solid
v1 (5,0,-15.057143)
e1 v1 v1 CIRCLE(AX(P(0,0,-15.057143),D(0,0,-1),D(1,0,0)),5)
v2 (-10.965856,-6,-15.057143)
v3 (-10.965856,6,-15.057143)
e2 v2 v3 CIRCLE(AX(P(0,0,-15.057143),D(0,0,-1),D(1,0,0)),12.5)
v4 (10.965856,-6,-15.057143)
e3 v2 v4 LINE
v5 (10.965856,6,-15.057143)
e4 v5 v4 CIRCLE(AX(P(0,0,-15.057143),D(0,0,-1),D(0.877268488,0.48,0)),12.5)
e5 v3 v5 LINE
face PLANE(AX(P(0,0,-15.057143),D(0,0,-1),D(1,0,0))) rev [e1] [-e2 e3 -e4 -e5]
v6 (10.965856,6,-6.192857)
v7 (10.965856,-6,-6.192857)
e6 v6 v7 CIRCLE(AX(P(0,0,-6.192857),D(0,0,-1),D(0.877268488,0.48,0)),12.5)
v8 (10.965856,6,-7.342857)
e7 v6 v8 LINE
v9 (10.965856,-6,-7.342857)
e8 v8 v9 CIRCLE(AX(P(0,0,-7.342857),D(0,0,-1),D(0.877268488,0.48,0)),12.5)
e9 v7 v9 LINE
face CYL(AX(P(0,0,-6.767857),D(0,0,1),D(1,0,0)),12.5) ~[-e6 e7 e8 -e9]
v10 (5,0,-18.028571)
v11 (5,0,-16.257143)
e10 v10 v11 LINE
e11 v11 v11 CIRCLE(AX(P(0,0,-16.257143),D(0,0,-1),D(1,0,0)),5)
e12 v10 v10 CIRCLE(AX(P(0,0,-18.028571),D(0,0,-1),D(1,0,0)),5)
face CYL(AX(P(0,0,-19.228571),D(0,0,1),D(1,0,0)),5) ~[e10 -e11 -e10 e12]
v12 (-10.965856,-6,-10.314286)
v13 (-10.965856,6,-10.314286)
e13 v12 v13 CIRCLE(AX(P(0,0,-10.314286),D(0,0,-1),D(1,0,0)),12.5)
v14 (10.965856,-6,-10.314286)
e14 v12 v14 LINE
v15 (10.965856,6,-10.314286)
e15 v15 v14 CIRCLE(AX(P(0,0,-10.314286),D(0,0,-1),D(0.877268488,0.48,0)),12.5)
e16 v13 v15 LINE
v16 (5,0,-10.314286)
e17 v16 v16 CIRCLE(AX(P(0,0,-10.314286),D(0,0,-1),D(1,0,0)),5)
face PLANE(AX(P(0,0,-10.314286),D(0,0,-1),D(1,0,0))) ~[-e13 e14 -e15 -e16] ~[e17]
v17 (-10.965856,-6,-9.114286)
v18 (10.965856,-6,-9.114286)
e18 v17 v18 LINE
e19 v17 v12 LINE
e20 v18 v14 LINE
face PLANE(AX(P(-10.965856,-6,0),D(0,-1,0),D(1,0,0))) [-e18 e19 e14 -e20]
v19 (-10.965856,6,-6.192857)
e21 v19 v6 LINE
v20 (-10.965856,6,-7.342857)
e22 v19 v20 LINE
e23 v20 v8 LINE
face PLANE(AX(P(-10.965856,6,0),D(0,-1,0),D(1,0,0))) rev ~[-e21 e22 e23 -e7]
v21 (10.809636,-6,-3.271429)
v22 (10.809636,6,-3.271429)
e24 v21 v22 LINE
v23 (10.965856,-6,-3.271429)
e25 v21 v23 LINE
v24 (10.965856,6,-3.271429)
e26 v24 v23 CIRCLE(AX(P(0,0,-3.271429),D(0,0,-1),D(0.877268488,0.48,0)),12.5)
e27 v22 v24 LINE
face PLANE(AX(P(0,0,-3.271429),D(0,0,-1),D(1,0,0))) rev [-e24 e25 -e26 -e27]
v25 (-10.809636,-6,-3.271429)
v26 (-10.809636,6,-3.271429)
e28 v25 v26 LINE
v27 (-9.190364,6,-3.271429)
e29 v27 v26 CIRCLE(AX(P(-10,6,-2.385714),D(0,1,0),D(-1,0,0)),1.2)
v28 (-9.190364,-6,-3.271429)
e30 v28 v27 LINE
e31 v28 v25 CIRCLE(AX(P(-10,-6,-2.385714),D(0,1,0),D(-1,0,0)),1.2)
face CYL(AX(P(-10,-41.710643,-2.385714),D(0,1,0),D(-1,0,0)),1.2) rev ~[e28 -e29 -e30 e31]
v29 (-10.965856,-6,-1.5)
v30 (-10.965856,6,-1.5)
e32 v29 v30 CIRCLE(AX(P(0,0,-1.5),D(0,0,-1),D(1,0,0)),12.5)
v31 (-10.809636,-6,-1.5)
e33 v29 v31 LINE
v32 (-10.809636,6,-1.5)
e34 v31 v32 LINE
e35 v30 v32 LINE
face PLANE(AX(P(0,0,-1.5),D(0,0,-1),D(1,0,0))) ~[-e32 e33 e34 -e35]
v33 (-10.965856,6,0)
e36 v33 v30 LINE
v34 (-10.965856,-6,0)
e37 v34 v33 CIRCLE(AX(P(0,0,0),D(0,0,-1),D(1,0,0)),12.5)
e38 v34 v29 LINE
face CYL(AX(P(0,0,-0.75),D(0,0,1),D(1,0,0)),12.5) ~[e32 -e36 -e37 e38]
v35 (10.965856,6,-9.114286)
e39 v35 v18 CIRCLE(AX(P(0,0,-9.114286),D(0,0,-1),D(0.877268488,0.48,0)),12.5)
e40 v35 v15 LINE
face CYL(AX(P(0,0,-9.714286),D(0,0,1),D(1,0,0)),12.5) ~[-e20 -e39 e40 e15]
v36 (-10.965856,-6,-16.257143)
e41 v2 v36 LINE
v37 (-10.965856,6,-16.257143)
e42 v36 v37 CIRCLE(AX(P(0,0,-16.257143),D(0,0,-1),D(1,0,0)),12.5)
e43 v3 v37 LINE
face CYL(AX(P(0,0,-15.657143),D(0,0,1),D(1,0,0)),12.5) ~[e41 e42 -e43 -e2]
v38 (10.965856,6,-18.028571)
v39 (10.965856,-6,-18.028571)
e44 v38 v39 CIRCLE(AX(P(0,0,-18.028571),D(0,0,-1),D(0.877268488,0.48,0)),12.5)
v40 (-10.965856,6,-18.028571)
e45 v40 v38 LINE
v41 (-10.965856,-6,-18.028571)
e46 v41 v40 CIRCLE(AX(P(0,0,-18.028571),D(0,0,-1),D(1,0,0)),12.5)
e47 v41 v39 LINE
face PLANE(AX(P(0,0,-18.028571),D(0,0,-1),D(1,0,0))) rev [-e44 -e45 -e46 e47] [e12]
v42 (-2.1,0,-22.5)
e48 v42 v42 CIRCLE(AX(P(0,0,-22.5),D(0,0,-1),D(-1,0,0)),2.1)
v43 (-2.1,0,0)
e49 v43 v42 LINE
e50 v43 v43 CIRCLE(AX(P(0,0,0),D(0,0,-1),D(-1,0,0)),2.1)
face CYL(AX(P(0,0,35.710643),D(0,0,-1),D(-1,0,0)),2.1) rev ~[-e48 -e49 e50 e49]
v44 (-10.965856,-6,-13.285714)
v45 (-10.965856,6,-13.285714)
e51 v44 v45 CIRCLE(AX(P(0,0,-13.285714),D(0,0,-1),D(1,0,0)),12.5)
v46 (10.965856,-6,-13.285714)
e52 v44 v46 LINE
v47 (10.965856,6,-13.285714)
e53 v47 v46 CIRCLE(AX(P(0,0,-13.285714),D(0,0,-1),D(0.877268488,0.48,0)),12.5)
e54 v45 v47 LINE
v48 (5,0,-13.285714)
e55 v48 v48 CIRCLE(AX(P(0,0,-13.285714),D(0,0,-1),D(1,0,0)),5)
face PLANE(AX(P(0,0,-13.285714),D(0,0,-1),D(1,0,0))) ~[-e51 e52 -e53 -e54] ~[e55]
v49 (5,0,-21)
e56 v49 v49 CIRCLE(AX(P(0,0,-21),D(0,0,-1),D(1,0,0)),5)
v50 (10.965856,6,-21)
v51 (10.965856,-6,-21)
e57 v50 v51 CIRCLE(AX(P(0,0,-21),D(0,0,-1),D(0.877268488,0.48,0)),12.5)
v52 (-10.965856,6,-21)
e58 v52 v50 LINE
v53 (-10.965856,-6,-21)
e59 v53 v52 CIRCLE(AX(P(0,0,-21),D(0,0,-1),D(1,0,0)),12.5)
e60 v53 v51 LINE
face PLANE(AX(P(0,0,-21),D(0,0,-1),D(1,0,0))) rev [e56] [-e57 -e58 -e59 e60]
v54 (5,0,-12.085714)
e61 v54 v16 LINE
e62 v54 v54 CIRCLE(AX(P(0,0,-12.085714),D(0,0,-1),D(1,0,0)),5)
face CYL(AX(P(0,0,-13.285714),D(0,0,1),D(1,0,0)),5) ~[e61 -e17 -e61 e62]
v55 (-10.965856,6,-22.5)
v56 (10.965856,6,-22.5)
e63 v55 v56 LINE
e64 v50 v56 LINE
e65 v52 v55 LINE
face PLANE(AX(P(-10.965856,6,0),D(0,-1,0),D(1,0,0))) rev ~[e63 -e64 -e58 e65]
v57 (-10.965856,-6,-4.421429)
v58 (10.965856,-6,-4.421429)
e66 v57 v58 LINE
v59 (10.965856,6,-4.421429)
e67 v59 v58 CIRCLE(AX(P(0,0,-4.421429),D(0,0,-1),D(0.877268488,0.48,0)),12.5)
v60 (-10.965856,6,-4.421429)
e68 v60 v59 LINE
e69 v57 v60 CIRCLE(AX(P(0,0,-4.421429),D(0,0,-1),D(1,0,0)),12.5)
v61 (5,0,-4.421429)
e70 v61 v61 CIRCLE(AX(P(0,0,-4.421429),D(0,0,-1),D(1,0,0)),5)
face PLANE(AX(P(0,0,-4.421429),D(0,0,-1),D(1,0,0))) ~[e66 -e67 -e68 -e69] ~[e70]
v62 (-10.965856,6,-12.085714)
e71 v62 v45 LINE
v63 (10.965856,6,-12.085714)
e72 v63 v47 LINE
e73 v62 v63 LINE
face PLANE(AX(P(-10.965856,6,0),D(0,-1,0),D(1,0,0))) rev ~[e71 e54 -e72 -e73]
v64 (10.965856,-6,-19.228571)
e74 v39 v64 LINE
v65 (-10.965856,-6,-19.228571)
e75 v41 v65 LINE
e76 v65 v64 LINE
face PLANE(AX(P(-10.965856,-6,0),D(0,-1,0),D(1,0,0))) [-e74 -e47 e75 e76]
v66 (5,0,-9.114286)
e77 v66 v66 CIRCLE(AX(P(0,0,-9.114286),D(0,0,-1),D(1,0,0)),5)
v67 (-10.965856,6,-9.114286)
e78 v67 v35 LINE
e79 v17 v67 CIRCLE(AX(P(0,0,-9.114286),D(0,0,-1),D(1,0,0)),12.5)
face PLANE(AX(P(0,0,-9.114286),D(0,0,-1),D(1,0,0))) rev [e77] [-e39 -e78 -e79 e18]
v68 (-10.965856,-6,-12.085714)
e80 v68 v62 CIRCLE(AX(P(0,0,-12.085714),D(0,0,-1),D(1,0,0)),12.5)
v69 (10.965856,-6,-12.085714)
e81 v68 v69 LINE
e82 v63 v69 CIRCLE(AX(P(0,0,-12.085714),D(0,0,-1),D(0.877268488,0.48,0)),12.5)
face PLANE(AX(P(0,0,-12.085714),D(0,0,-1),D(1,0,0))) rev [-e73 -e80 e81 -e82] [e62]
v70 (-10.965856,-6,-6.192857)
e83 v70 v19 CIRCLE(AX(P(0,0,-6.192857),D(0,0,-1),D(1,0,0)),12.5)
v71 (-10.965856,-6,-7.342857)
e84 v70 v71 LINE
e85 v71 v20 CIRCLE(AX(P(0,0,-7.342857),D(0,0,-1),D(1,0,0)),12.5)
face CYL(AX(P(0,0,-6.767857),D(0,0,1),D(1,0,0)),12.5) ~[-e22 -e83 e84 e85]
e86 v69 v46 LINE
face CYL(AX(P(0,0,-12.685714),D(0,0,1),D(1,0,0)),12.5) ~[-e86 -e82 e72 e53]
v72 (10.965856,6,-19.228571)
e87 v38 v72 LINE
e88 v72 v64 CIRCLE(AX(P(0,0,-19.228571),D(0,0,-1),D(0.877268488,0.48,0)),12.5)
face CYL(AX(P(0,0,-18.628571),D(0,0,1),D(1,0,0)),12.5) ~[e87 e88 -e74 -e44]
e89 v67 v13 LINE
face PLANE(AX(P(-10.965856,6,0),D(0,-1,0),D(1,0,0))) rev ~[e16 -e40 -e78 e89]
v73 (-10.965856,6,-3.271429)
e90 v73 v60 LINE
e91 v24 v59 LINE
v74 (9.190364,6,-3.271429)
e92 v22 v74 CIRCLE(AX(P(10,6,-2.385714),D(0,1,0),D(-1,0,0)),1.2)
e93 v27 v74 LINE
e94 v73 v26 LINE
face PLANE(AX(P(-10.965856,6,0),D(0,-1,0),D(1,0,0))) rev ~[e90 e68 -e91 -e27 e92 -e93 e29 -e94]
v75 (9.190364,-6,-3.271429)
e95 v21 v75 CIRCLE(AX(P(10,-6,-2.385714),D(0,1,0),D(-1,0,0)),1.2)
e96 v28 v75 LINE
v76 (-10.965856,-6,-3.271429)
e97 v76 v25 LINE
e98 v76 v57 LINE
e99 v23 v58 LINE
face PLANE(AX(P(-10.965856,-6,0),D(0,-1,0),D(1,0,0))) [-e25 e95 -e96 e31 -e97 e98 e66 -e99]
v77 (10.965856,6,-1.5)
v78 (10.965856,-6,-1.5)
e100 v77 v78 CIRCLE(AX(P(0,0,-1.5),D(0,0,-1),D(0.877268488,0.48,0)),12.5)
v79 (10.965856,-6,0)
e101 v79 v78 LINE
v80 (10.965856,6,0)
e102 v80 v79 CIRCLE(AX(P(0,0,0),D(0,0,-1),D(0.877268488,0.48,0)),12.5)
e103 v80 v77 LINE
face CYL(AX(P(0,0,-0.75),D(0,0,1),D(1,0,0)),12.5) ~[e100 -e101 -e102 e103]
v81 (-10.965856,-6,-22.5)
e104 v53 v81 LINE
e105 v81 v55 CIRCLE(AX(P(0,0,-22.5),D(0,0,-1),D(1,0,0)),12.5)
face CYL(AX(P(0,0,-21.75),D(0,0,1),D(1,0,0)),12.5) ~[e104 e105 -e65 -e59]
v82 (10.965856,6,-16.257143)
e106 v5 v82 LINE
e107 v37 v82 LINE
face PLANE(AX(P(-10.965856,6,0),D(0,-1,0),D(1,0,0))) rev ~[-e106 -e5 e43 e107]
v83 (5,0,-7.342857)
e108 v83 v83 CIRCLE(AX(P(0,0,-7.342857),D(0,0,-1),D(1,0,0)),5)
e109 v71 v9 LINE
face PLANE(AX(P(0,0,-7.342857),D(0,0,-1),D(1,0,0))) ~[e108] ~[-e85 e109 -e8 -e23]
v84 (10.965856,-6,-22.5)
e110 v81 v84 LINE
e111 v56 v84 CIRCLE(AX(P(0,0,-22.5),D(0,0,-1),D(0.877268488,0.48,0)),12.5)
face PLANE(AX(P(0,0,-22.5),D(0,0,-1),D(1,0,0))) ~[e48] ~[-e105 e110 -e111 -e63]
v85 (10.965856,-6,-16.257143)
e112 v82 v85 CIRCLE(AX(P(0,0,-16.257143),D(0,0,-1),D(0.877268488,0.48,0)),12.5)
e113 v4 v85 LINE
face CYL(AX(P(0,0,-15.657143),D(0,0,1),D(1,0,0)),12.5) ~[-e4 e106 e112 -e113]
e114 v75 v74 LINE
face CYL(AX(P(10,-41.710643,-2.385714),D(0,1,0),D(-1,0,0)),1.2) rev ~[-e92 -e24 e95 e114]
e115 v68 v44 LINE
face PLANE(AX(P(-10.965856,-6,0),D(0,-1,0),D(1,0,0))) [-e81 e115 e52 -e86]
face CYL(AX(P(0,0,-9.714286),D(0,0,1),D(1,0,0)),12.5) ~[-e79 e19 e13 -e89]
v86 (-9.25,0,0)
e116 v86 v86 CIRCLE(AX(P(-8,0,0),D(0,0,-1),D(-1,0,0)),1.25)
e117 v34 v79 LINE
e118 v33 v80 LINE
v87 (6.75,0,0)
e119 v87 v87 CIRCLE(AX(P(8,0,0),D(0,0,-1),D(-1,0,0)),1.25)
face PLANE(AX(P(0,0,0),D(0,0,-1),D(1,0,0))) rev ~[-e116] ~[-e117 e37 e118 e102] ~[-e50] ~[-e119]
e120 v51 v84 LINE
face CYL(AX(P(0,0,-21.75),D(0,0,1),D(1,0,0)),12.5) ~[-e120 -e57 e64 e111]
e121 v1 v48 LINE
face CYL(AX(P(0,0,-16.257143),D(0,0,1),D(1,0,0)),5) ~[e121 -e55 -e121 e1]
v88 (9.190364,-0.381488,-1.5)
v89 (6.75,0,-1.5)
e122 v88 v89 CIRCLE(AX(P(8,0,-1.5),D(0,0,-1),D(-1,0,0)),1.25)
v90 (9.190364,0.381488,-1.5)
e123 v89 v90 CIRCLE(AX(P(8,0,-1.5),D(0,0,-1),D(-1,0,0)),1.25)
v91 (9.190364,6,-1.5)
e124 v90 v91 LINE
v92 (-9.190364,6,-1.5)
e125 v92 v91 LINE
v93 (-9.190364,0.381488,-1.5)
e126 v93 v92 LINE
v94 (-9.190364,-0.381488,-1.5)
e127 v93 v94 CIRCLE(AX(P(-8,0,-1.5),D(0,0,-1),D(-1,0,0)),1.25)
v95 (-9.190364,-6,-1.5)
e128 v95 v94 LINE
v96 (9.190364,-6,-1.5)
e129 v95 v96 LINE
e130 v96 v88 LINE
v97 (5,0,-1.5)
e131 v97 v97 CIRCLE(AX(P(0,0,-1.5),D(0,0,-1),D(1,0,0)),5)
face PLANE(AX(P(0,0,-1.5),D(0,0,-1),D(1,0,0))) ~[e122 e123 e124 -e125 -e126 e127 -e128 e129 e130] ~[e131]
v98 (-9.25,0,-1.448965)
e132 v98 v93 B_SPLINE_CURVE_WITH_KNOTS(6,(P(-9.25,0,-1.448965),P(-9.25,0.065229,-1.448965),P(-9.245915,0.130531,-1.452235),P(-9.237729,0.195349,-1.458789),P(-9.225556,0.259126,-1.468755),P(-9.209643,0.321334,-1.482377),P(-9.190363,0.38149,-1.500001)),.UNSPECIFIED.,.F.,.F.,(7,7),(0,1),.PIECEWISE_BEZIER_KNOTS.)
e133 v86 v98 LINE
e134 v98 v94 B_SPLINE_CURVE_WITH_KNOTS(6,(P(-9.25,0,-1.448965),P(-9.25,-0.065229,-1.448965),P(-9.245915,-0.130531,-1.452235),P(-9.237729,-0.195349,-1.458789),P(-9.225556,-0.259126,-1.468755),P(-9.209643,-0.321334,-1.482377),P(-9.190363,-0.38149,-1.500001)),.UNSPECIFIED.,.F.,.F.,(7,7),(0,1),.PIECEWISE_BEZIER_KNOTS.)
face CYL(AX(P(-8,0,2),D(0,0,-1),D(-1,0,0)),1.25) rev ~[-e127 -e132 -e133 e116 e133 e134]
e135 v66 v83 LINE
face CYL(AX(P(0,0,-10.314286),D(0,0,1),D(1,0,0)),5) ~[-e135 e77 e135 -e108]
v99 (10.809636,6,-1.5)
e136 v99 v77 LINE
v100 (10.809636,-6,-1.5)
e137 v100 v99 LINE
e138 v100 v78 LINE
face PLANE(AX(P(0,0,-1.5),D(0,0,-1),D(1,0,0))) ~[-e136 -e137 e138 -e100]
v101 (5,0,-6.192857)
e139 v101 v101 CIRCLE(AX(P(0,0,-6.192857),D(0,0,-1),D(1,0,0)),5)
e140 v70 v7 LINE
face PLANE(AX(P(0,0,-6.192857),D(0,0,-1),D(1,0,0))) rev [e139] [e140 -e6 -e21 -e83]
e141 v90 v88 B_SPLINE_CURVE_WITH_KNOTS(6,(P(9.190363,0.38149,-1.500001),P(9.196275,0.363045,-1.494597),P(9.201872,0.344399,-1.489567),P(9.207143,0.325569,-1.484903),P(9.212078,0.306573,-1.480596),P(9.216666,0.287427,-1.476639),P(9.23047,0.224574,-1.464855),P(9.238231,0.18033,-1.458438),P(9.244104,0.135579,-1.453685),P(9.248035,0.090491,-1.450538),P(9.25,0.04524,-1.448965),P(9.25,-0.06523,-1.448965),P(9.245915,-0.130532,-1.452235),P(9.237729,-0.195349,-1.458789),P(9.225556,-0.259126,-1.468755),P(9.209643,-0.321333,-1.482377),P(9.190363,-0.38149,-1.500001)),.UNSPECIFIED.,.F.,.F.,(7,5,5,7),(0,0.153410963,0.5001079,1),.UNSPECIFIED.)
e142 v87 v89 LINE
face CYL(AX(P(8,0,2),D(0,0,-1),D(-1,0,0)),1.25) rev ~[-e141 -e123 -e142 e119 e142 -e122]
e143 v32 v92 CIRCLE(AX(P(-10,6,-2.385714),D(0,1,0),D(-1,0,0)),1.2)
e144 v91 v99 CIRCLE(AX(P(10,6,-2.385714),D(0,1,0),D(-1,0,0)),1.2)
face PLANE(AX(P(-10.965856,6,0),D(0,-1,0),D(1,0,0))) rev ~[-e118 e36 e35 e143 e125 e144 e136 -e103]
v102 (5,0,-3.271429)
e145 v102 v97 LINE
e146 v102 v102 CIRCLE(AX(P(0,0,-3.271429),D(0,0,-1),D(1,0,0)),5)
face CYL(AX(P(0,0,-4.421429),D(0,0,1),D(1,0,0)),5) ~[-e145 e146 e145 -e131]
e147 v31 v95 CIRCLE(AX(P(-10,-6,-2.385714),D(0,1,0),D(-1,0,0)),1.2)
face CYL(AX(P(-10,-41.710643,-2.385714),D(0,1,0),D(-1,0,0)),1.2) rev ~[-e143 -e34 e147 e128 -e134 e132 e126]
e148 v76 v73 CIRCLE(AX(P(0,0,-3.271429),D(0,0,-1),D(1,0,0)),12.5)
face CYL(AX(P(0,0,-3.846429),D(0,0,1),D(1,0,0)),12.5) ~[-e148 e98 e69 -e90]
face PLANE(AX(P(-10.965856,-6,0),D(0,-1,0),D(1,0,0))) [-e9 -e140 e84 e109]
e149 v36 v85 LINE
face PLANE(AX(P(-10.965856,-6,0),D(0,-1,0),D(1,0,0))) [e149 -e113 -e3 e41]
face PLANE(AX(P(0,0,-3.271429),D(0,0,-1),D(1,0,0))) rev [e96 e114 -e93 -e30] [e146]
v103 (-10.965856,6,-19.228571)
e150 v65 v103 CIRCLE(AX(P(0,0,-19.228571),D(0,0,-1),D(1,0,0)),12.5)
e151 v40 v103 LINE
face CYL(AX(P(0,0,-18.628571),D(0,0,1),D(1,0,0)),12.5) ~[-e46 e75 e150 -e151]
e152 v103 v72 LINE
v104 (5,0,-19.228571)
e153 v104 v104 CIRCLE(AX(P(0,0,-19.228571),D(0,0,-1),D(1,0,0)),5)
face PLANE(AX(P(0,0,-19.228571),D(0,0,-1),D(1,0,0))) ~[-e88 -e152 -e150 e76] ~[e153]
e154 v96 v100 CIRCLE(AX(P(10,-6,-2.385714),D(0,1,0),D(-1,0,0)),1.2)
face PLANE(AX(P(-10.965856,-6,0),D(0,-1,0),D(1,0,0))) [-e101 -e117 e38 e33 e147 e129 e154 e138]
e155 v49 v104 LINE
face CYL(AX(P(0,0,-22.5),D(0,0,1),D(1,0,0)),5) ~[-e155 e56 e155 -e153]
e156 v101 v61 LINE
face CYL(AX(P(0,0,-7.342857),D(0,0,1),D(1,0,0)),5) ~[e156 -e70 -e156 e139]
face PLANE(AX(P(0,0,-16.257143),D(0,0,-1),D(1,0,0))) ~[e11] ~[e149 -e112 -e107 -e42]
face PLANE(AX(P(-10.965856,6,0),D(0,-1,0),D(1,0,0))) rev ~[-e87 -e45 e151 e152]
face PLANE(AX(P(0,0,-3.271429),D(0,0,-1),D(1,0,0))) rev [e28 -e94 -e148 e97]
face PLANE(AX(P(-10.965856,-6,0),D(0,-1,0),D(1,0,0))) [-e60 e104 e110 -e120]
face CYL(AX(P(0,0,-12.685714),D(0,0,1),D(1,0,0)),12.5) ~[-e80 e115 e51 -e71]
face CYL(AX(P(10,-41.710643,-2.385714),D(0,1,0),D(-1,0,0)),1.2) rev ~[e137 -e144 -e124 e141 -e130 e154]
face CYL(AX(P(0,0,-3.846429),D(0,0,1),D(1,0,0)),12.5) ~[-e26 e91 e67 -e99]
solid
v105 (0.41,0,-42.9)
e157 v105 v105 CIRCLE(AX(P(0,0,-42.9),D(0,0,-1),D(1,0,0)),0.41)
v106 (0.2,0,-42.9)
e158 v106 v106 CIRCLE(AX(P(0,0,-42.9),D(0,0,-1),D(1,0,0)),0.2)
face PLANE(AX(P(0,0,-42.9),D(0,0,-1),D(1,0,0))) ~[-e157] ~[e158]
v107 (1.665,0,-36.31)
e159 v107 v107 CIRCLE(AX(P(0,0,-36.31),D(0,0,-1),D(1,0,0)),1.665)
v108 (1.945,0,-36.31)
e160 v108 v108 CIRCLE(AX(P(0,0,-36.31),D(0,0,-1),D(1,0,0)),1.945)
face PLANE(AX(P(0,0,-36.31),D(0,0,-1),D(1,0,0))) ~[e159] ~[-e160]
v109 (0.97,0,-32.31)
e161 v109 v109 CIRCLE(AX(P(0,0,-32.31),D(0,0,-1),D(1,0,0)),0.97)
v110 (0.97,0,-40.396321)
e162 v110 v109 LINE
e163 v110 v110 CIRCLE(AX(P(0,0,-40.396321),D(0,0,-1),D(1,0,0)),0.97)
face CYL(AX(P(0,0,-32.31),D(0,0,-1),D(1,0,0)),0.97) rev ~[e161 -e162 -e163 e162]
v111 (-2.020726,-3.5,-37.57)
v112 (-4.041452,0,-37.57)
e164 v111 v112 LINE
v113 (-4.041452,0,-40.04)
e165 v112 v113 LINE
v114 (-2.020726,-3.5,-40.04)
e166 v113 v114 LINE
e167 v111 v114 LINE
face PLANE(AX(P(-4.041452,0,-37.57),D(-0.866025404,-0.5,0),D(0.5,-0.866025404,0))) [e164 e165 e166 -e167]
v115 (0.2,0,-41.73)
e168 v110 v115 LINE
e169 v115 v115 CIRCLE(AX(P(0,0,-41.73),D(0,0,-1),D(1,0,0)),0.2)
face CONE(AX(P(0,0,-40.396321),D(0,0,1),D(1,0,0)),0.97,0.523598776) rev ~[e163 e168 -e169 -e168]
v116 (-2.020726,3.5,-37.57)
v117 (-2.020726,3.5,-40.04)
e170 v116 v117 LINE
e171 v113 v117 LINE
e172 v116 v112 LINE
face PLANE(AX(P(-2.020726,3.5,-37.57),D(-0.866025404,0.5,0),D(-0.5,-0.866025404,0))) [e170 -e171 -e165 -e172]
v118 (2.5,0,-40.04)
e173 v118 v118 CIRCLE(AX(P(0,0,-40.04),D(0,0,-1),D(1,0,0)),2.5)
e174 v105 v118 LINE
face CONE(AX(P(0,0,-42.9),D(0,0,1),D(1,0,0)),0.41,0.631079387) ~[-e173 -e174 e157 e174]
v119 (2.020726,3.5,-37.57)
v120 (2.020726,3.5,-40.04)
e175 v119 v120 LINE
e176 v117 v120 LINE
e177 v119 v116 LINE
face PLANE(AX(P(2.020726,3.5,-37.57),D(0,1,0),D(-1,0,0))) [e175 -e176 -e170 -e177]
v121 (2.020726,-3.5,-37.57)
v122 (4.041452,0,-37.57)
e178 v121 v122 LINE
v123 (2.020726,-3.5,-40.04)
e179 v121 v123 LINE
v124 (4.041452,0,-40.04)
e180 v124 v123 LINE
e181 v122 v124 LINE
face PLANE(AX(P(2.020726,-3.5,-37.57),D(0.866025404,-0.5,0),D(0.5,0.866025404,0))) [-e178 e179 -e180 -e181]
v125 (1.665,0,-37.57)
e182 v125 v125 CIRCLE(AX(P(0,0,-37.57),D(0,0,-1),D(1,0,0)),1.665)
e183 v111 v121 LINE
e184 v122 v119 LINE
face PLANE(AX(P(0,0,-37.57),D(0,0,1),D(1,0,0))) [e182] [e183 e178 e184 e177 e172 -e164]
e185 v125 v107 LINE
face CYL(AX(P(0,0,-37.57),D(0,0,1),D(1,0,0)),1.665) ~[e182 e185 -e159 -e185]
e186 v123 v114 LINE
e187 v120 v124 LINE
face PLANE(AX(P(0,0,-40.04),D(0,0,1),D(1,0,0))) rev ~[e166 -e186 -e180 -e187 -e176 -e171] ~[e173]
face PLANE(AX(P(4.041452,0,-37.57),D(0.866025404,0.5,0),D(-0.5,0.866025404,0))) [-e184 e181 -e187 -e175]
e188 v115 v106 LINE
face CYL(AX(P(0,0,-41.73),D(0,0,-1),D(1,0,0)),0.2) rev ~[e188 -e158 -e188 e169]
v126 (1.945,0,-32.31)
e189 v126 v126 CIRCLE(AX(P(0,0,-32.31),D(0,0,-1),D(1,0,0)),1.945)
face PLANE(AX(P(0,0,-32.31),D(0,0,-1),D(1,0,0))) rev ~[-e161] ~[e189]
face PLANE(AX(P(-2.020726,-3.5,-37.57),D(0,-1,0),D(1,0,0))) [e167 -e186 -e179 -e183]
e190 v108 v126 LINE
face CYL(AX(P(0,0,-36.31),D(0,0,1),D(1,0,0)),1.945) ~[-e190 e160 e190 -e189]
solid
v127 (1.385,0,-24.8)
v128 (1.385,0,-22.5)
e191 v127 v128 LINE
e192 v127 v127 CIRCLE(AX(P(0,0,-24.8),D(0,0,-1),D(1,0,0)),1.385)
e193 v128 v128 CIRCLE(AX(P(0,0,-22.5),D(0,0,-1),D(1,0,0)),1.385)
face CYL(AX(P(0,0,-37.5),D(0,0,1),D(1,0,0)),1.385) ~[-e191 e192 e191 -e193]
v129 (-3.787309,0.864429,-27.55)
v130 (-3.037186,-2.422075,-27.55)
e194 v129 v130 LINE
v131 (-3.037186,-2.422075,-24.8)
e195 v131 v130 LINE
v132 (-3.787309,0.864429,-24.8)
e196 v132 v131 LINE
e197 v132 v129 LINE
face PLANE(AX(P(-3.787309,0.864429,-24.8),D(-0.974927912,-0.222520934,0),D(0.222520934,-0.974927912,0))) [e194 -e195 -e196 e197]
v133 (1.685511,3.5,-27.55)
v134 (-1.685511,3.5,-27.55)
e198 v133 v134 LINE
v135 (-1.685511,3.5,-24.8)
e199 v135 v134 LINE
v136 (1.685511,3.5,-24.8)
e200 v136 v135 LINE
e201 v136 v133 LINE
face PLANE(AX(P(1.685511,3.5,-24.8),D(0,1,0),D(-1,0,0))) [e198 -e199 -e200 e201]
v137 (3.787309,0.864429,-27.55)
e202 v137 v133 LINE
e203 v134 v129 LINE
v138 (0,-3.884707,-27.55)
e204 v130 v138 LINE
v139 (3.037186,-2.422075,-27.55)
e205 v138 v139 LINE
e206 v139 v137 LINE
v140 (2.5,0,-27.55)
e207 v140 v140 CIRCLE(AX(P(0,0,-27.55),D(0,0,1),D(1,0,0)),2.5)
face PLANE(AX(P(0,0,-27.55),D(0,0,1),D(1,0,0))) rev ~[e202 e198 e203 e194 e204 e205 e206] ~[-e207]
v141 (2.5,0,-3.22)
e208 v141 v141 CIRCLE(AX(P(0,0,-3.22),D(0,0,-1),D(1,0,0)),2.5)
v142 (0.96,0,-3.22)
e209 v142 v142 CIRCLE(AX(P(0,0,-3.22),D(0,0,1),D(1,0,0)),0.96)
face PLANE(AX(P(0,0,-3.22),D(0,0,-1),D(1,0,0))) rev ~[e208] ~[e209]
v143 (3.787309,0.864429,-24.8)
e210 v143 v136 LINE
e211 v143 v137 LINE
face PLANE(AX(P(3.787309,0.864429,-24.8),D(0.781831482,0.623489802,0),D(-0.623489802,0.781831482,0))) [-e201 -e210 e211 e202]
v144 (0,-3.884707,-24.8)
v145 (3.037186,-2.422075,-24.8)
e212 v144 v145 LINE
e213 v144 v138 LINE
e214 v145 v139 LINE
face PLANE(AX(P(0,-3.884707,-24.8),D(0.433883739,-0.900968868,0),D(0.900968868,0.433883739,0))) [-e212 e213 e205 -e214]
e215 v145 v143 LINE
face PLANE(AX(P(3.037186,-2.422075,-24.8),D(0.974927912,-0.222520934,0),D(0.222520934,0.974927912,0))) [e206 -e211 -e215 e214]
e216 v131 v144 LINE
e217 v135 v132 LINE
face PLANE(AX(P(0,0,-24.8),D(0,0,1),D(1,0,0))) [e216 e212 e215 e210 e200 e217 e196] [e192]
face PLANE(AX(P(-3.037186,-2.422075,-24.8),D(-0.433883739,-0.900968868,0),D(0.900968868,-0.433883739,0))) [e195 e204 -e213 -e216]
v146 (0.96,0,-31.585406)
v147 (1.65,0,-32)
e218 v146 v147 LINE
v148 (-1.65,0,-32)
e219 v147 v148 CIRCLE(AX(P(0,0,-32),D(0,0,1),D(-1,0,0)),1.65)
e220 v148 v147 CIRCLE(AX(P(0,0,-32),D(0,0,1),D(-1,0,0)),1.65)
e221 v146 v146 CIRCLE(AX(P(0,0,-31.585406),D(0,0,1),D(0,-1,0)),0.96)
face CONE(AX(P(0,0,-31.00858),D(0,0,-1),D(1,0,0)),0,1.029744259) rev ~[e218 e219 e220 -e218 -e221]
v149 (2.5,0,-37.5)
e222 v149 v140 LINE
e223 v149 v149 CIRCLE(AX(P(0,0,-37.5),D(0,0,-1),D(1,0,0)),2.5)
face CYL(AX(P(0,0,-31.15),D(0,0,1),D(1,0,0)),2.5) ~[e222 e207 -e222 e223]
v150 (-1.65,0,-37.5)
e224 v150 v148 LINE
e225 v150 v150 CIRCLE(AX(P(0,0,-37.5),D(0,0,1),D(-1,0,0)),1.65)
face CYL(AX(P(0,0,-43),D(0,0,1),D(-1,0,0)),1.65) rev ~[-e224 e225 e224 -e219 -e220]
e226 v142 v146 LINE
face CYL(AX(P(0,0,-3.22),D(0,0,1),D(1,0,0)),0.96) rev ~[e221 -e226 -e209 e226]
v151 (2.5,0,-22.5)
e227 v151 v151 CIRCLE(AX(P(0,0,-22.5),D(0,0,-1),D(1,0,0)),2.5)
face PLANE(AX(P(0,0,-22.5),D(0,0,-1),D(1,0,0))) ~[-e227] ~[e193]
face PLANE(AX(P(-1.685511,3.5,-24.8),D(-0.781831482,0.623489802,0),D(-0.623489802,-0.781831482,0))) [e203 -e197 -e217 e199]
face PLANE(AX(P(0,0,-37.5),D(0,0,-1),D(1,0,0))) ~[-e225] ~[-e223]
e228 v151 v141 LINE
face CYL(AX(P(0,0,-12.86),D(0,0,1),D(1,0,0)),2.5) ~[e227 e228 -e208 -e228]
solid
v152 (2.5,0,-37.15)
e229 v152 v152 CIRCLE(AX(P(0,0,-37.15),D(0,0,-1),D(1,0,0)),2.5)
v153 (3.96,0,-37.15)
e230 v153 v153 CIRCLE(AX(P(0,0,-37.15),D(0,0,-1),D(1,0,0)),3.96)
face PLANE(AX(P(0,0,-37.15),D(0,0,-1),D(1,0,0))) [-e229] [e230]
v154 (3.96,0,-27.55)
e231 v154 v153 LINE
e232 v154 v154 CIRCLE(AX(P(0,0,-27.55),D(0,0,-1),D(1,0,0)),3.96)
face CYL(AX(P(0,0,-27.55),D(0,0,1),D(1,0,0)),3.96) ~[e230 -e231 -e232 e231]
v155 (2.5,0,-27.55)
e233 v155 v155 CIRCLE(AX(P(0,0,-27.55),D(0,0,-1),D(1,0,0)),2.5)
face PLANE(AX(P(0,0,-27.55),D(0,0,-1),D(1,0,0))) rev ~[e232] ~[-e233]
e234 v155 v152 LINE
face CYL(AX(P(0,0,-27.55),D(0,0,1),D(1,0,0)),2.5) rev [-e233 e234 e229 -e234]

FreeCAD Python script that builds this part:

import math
import FreeCAD as App
import Part
import Sketcher

V = App.Vector
Q = App.Units.Quantity


def add_polygon(sketch, points):
    """Adds a closed chain of lines whose ends are joined by coincident constraints."""
    first, n = sketch.GeometryCount, len(points)
    for a, b in zip(points, points[1:] + points[:1]):
        sketch.addGeometry(Part.LineSegment(App.Vector(*a, 0), App.Vector(*b, 0)), False)
    for i in range(n):
        sketch.addConstraint(Sketcher.Constraint("Coincident", first + i, 2, first + (i + 1) % n, 1))

doc = App.newDocument("Part")
body = doc.addObject("PartDesign::Body", "Body")

# Sketch on XZ plane
sketch1 = doc.addObject("Sketcher::SketchObject", "Sketch")
body.addObject(sketch1)
sketch1.AttachmentSupport = (doc.XZ_Plane, [""])
sketch1.MapMode = "FlatFace"
add_polygon(sketch1, [(0, 0), (0, -22.5), (12.5, -22.5), (12.5, -21), (5, -21), (5, -19.2), (12.5, -19.2), (12.5, -18), (5, -18), (5, -16.3), (12.5, -16.3), (12.5, -15.1), (5, -15.1), (5, -13.3), (12.5, -13.3), (12.5, -12.1), (5, -12.1), (5, -10.3), (12.5, -10.3), (12.5, -9.1), (5, -9.1), (5, -7.3), (12.5, -7.3), (12.5, -6.2), (5, -6.2), (5, -4.4), (12.5, -4.4), (12.5, -3.3), (5, -3.3), (5, -1.5), (12.5, -1.5), (12.5, 0)])  # lines 0-31
sketch1.addConstraint(Sketcher.Constraint("Vertical", 0))
sketch1.addConstraint(Sketcher.Constraint("Horizontal", 1))
sketch1.addConstraint(Sketcher.Constraint("Vertical", 2))
sketch1.addConstraint(Sketcher.Constraint("Horizontal", 3))
sketch1.addConstraint(Sketcher.Constraint("Vertical", 4))
sketch1.addConstraint(Sketcher.Constraint("Horizontal", 5))
sketch1.addConstraint(Sketcher.Constraint("Vertical", 6))
sketch1.addConstraint(Sketcher.Constraint("Horizontal", 7))
sketch1.addConstraint(Sketcher.Constraint("Vertical", 8))
sketch1.addConstraint(Sketcher.Constraint("Horizontal", 9))
sketch1.addConstraint(Sketcher.Constraint("Vertical", 10))
sketch1.addConstraint(Sketcher.Constraint("Horizontal", 11))
sketch1.addConstraint(Sketcher.Constraint("Vertical", 12))
sketch1.addConstraint(Sketcher.Constraint("Horizontal", 13))
sketch1.addConstraint(Sketcher.Constraint("Vertical", 14))
sketch1.addConstraint(Sketcher.Constraint("Horizontal", 15))
sketch1.addConstraint(Sketcher.Constraint("Vertical", 16))
sketch1.addConstraint(Sketcher.Constraint("Horizontal", 17))
sketch1.addConstraint(Sketcher.Constraint("Vertical", 18))
sketch1.addConstraint(Sketcher.Constraint("Horizontal", 19))
sketch1.addConstraint(Sketcher.Constraint("Vertical", 20))
sketch1.addConstraint(Sketcher.Constraint("Horizontal", 21))
sketch1.addConstraint(Sketcher.Constraint("Vertical", 22))
sketch1.addConstraint(Sketcher.Constraint("Horizontal", 23))
sketch1.addConstraint(Sketcher.Constraint("Vertical", 24))
sketch1.addConstraint(Sketcher.Constraint("Horizontal", 25))
sketch1.addConstraint(Sketcher.Constraint("Vertical", 26))
sketch1.addConstraint(Sketcher.Constraint("Horizontal", 27))
sketch1.addConstraint(Sketcher.Constraint("Vertical", 28))
sketch1.addConstraint(Sketcher.Constraint("Horizontal", 29))
sketch1.addConstraint(Sketcher.Constraint("Vertical", 30))
sketch1.addConstraint(Sketcher.Constraint("Horizontal", 31))
sketch1.addConstraint(Sketcher.Constraint("Coincident", 31, 2, -1, 1))
sketch1.addConstraint(Sketcher.Constraint("Vertical", 2, 2, 5, 2))
sketch1.addConstraint(Sketcher.Constraint("Vertical", 4, 2, 7, 2))
sketch1.addConstraint(Sketcher.Constraint("Vertical", 6, 2, 9, 2))
sketch1.addConstraint(Sketcher.Constraint("Vertical", 8, 2, 11, 2))
sketch1.addConstraint(Sketcher.Constraint("Vertical", 10, 2, 13, 2))
sketch1.addConstraint(Sketcher.Constraint("Vertical", 12, 2, 15, 2))
sketch1.addConstraint(Sketcher.Constraint("Vertical", 14, 2, 17, 2))
sketch1.addConstraint(Sketcher.Constraint("Vertical", 16, 2, 19, 2))
sketch1.addConstraint(Sketcher.Constraint("Vertical", 18, 2, 21, 2))
sketch1.addConstraint(Sketcher.Constraint("Vertical", 20, 2, 23, 2))
sketch1.addConstraint(Sketcher.Constraint("Vertical", 22, 2, 25, 2))
sketch1.addConstraint(Sketcher.Constraint("Vertical", 24, 2, 27, 2))
sketch1.addConstraint(Sketcher.Constraint("Vertical", 26, 2, 29, 2))
sketch1.addConstraint(Sketcher.Constraint("Equal", 4, 8))
sketch1.addConstraint(Sketcher.Constraint("Equal", 6, 10))
sketch1.addConstraint(Sketcher.Constraint("Equal", 8, 12))
sketch1.addConstraint(Sketcher.Constraint("Equal", 10, 14))
sketch1.addConstraint(Sketcher.Constraint("Equal", 12, 16))
sketch1.addConstraint(Sketcher.Constraint("Equal", 14, 18))
sketch1.addConstraint(Sketcher.Constraint("Equal", 16, 20))
sketch1.addConstraint(Sketcher.Constraint("Equal", 20, 24))
sketch1.addConstraint(Sketcher.Constraint("Equal", 22, 26))
sketch1.addConstraint(Sketcher.Constraint("Equal", 24, 28))
sketch1.addConstraint(Sketcher.Constraint("Equal", 2, 30))
sketch1.addConstraint(Sketcher.Constraint("DistanceX", 1, 1, 1, 2, Q("12.5 mm")))
sketch1.addConstraint(Sketcher.Constraint("DistanceX", 3, 2, 3, 1, Q("7.5 mm")))
sketch1.addConstraint(Sketcher.Constraint("DistanceY", 0, 2, 0, 1, Q("22.5 mm")))
sketch1.addConstraint(Sketcher.Constraint("DistanceY", 2, 1, 2, 2, Q("1.5 mm")))
sketch1.addConstraint(Sketcher.Constraint("DistanceY", 6, 1, 6, 2, Q("1.2 mm")))
sketch1.addConstraint(Sketcher.Constraint("DistanceY", 22, 1, 22, 2, Q("1.15 mm")))
revolution = doc.addObject("PartDesign::Revolution", "Revolution")
body.addObject(revolution)
revolution.Profile = sketch1
revolution.ReferenceAxis = (sketch1, ["V_Axis"])
revolution.Angle = 360

# Sketch on XY plane
sketch2 = doc.addObject("Sketcher::SketchObject", "Sketch001")
body.addObject(sketch2)
sketch2.AttachmentSupport = (doc.XY_Plane, [""])
sketch2.MapMode = "FlatFace"
add_polygon(sketch2, [(-11, -6), (-11, -12), (11, -12), (11, -6)])  # lines 0-3
add_polygon(sketch2, [(-11, 12), (-11, 6), (11, 6), (11, 12)])  # lines 4-7
sketch2.addConstraint(Sketcher.Constraint("Vertical", 0))
sketch2.addConstraint(Sketcher.Constraint("Horizontal", 1))
sketch2.addConstraint(Sketcher.Constraint("Vertical", 2))
sketch2.addConstraint(Sketcher.Constraint("Horizontal", 3))
sketch2.addConstraint(Sketcher.Constraint("Vertical", 4))
sketch2.addConstraint(Sketcher.Constraint("Horizontal", 5))
sketch2.addConstraint(Sketcher.Constraint("Vertical", 6))
sketch2.addConstraint(Sketcher.Constraint("Horizontal", 7))
sketch2.addConstraint(Sketcher.Constraint("Symmetric", 2, 2, 4, 2, -1, 1))
sketch2.addConstraint(Sketcher.Constraint("Symmetric", 0, 2, 6, 2, -1, 1))
sketch2.addConstraint(Sketcher.Constraint("Vertical", 3, 2, 4, 2))
sketch2.addConstraint(Sketcher.Constraint("DistanceY", 0, 2, 0, 1, Q("6.5 mm")))
sketch2.addConstraint(Sketcher.Constraint("DistanceY", 2, 2, -1, 1, Q("6 mm")))
sketch2.addConstraint(Sketcher.Constraint("DistanceX", 1, 1, 1, 2, Q("21.931712 mm")))
pocket1 = doc.addObject("PartDesign::Pocket", "Pocket")
body.addObject(pocket1)
pocket1.Profile = sketch2
pocket1.Type = "ThroughAll"

# Sketch on XY plane
sketch3 = doc.addObject("Sketcher::SketchObject", "Sketch002")
body.addObject(sketch3)
sketch3.AttachmentSupport = (doc.XY_Plane, [""])
sketch3.MapMode = "FlatFace"
sketch3.addGeometry(Part.Circle(V(0, 0, 0), V(0, 0, 1), 2.1), False)
sketch3.addConstraint(Sketcher.Constraint("Coincident", 0, 3, -1, 1))
sketch3.addConstraint(Sketcher.Constraint("Diameter", 0, Q("4.2 mm")))
doc.recompute()
hole = doc.addObject("PartDesign::Hole", "Hole")
body.addObject(hole)
hole.Profile = sketch3
hole.ThreadType = "None"
hole.Diameter = 4.2
hole.DepthType = "ThroughAll"

# Sketch on XY plane
sketch4 = doc.addObject("Sketcher::SketchObject", "Sketch003")
body.addObject(sketch4)
sketch4.AttachmentSupport = (doc.XY_Plane, [""])
sketch4.MapMode = "FlatFace"
sketch4.addGeometry(Part.Circle(V(-8, 0, 0), V(0, 0, 1), 1.2), False)
sketch4.addGeometry(Part.Circle(V(8, 0, 0), V(0, 0, 1), 1.2), False)
sketch4.addConstraint(Sketcher.Constraint("Equal", 0, 1))
sketch4.addConstraint(Sketcher.Constraint("Symmetric", 0, 3, 1, 3, -1, 1))
sketch4.addConstraint(Sketcher.Constraint("PointOnObject", 0, 3, -1))
sketch4.addConstraint(Sketcher.Constraint("Diameter", 0, Q("2.5 mm")))
sketch4.addConstraint(Sketcher.Constraint("DistanceX", 0, 3, -1, 1, Q("8 mm")))
doc.recompute()
hole2 = doc.addObject("PartDesign::Hole", "Hole001")
body.addObject(hole2)
hole2.Profile = sketch4
hole2.ThreadType = "None"
hole2.Diameter = 2.5
hole2.DepthType = "Dimension"
hole2.Depth = 2
hole2.DrillPoint = "Angled"
hole2.DrillPointAngle = 118

# Sketch on XZ plane
sketch5 = doc.addObject("Sketcher::SketchObject", "Sketch004")
body.addObject(sketch5)
sketch5.AttachmentSupport = (doc.XZ_Plane, [""])
sketch5.MapMode = "FlatFace"
sketch5.AttachmentOffset = App.Placement(V(0, 0, 6), App.Rotation())
sketch5.addGeometry(Part.Circle(V(-10, -2.4, 0), V(0, 0, 1), 1.2), False)
sketch5.addGeometry(Part.Circle(V(10, -2.4, 0), V(0, 0, 1), 1.2), False)
sketch5.addConstraint(Sketcher.Constraint("Equal", 0, 1))
sketch5.addConstraint(Sketcher.Constraint("Symmetric", 0, 3, 1, 3, -2))
sketch5.addConstraint(Sketcher.Constraint("Diameter", 0, Q("2.4 mm")))
sketch5.addConstraint(Sketcher.Constraint("DistanceX", 0, 3, -1, 1, Q("10 mm")))
sketch5.addConstraint(Sketcher.Constraint("DistanceY", 0, 3, -1, 1, Q("2.385714 mm")))
doc.recompute()
hole3 = doc.addObject("PartDesign::Hole", "Hole002")
body.addObject(hole3)
hole3.Profile = sketch5
hole3.ThreadType = "None"
hole3.Diameter = 2.4
hole3.DepthType = "ThroughAll"
body2 = doc.addObject("PartDesign::Body", "Body001")

# Sketch on XZ plane
sketch6 = doc.addObject("Sketcher::SketchObject", "Sketch005")
body2.addObject(sketch6)
sketch6.AttachmentSupport = (doc.getObject("XZ_Plane001"), [""])
sketch6.MapMode = "FlatFace"
add_polygon(sketch6, [(0, -3.2), (0, -37.5), (2.5, -37.5), (2.5, -24.8), (1.4, -24.8), (1.4, -22.5), (2.5, -22.5), (2.5, -3.2)])  # lines 0-7
sketch6.addConstraint(Sketcher.Constraint("Vertical", 0))
sketch6.addConstraint(Sketcher.Constraint("Horizontal", 1))
sketch6.addConstraint(Sketcher.Constraint("Vertical", 2))
sketch6.addConstraint(Sketcher.Constraint("Horizontal", 3))
sketch6.addConstraint(Sketcher.Constraint("Vertical", 4))
sketch6.addConstraint(Sketcher.Constraint("Horizontal", 5))
sketch6.addConstraint(Sketcher.Constraint("Vertical", 6))
sketch6.addConstraint(Sketcher.Constraint("Horizontal", 7))
sketch6.addConstraint(Sketcher.Constraint("PointOnObject", 0, 2, -2))
sketch6.addConstraint(Sketcher.Constraint("Vertical", 2, 2, 5, 2))
sketch6.addConstraint(Sketcher.Constraint("DistanceX", 1, 1, 1, 2, Q("2.5 mm")))
sketch6.addConstraint(Sketcher.Constraint("DistanceY", 2, 1, 2, 2, Q("12.7 mm")))
sketch6.addConstraint(Sketcher.Constraint("DistanceY", 4, 1, 4, 2, Q("2.3 mm")))
sketch6.addConstraint(Sketcher.Constraint("DistanceY", 0, 2, 0, 1, Q("34.28 mm")))
sketch6.addConstraint(Sketcher.Constraint("DistanceY", 0, 2, -1, 1, Q("37.5 mm")))
sketch6.addConstraint(Sketcher.Constraint("DistanceX", 3, 2, 3, 1, Q("1.115 mm")))
revolution2 = doc.addObject("PartDesign::Revolution", "Revolution001")
body2.addObject(revolution2)
revolution2.Profile = sketch6
revolution2.ReferenceAxis = (sketch6, ["V_Axis"])
revolution2.Angle = 360

# Sketch on XY plane
sketch7 = doc.addObject("Sketcher::SketchObject", "Sketch006")
body2.addObject(sketch7)
sketch7.AttachmentSupport = (doc.getObject("XY_Plane001"), [""])
sketch7.MapMode = "FlatFace"
sketch7.AttachmentOffset = App.Placement(V(0, 0, -24.8), App.Rotation())
add_polygon(sketch7, [(3.8, 0.9), (1.7, 3.5), (-1.7, 3.5), (-3.8, 0.9), (-3, -2.4), (0, -3.9), (3, -2.4)])  # lines 0-6
sketch7.addConstraint(Sketcher.Constraint("Horizontal", 1))
sketch7.addConstraint(Sketcher.Constraint("Symmetric", 3, 2, 5, 2, -2))
sketch7.addConstraint(Sketcher.Constraint("Symmetric", 2, 2, 6, 2, -2))
sketch7.addConstraint(Sketcher.Constraint("PointOnObject", 4, 2, -2))
sketch7.addConstraint(Sketcher.Constraint("Equal", 0, 2))
sketch7.addConstraint(Sketcher.Constraint("Equal", 2, 3))
sketch7.addConstraint(Sketcher.Constraint("Equal", 3, 4))
sketch7.addConstraint(Sketcher.Constraint("DistanceY", -1, 1, 0, 2, Q("3.5 mm")))
sketch7.addConstraint(Sketcher.Constraint("DistanceX", 2, 2, 1, 2, Q("2.101798 mm")))
sketch7.addConstraint(Sketcher.Constraint("DistanceX", 1, 2, 1, 1, Q("3.371022 mm")))
sketch7.addConstraint(Sketcher.Constraint("DistanceY", -1, 1, 2, 2, Q("0.864429 mm")))
sketch7.addConstraint(Sketcher.Constraint("DistanceY", 4, 2, 3, 2, Q("1.462632 mm")))
pad1 = doc.addObject("PartDesign::Pad", "Pad")
body2.addObject(pad1)
pad1.Profile = sketch7
pad1.Length = 2.75
pad1.Reversed = True

# Sketch on XY plane
sketch8 = doc.addObject("Sketcher::SketchObject", "Sketch007")
body2.addObject(sketch8)
sketch8.AttachmentSupport = (doc.getObject("XY_Plane001"), [""])
sketch8.MapMode = "FlatFace"
sketch8.AttachmentOffset = App.Placement(V(0, 0, -37.5), App.Rotation())
sketch8.addGeometry(Part.Circle(V(0, 0, 0), V(0, 0, 1), 1.6), False)
sketch8.addConstraint(Sketcher.Constraint("Coincident", 0, 3, -1, 1))
sketch8.addConstraint(Sketcher.Constraint("Diameter", 0, Q("3.3 mm")))
doc.recompute()
hole4 = doc.addObject("PartDesign::Hole", "Hole003")
body2.addObject(hole4)
hole4.Profile = sketch8
hole4.ThreadType = "None"
hole4.Diameter = 3.3
hole4.DepthType = "Dimension"
hole4.Depth = 5.5
hole4.DrillPoint = "Angled"
hole4.DrillPointAngle = 118
hole4.Reversed = True

# Sketch on XY plane
sketch9 = doc.addObject("Sketcher::SketchObject", "Sketch008")
body2.addObject(sketch9)
sketch9.AttachmentSupport = (doc.getObject("XY_Plane001"), [""])
sketch9.MapMode = "FlatFace"
sketch9.AttachmentOffset = App.Placement(V(0, 0, -3.22), App.Rotation())
sketch9.addGeometry(Part.Circle(V(0, 0, 0), V(0, 0, 1), 1), False)
sketch9.addConstraint(Sketcher.Constraint("Coincident", 0, 3, -1, 1))
sketch9.addConstraint(Sketcher.Constraint("Diameter", 0, Q("1.92 mm")))
pocket2 = doc.addObject("PartDesign::Pocket", "Pocket001")
body2.addObject(pocket2)
pocket2.Profile = sketch9
pocket2.Type = "ThroughAll"
body3 = doc.addObject("PartDesign::Body", "Body002")

# Sketch on XY plane
sketch10 = doc.addObject("Sketcher::SketchObject", "Sketch009")
body3.addObject(sketch10)
sketch10.AttachmentSupport = (doc.getObject("XY_Plane002"), [""])
sketch10.MapMode = "FlatFace"
sketch10.AttachmentOffset = App.Placement(V(0, 0, -27.55), App.Rotation())
sketch10.addGeometry(Part.Circle(V(0, 0, 0), V(0, 0, 1), 4), False)
sketch10.addGeometry(Part.Circle(V(0, 0, 0), V(0, 0, 1), 2.5), False)
sketch10.addConstraint(Sketcher.Constraint("Coincident", 0, 3, -1, 1))
sketch10.addConstraint(Sketcher.Constraint("Coincident", 1, 3, -1, 1))
sketch10.addConstraint(Sketcher.Constraint("Diameter", 1, Q("5 mm")))
sketch10.addConstraint(Sketcher.Constraint("Diameter", 0, Q("7.92 mm")))
pad2 = doc.addObject("PartDesign::Pad", "Pad001")
body3.addObject(pad2)
pad2.Profile = sketch10
pad2.Length = 9.6
pad2.Reversed = True
body4 = doc.addObject("PartDesign::Body", "Body003")

# Sketch on XZ plane
sketch11 = doc.addObject("Sketcher::SketchObject", "Sketch010")
body4.addObject(sketch11)
sketch11.AttachmentSupport = (doc.getObject("XZ_Plane003"), [""])
sketch11.MapMode = "FlatFace"
add_polygon(sketch11, [(1.95, -32.31), (0.97, -32.31), (0.97, -40.4), (0.2, -41.73), (0.2, -42.9), (0.41, -42.9), (2.5, -40.04), (3.5, -40.04), (3.5, -37.57), (1.67, -37.57), (1.67, -36.31), (1.95, -36.31)])  # lines 0-11
sketch11.addConstraint(Sketcher.Constraint("Horizontal", 0))
sketch11.addConstraint(Sketcher.Constraint("Vertical", 1))
sketch11.addConstraint(Sketcher.Constraint("Vertical", 3))
sketch11.addConstraint(Sketcher.Constraint("Horizontal", 4))
sketch11.addConstraint(Sketcher.Constraint("Horizontal", 6))
sketch11.addConstraint(Sketcher.Constraint("Vertical", 7))
sketch11.addConstraint(Sketcher.Constraint("Horizontal", 8))
sketch11.addConstraint(Sketcher.Constraint("Vertical", 9))
sketch11.addConstraint(Sketcher.Constraint("Horizontal", 10))
sketch11.addConstraint(Sketcher.Constraint("Vertical", 11))
sketch11.addConstraint(Sketcher.Constraint("DistanceX", 6, 1, 6, 2, Q("1 mm")))
sketch11.addConstraint(Sketcher.Constraint("DistanceY", 11, 1, 11, 2, Q("4 mm")))
sketch11.addConstraint(Sketcher.Constraint("Angle", 2, Q("-120 deg")))
sketch11.addConstraint(Sketcher.Constraint("DistanceX", 4, 1, 4, 2, Q("0.21 mm")))
sketch11.addConstraint(Sketcher.Constraint("DistanceX", 10, 1, 10, 2, Q("0.28 mm")))
sketch11.addConstraint(Sketcher.Constraint("DistanceY", 3, 2, 3, 1, Q("1.17 mm")))
sketch11.addConstraint(Sketcher.Constraint("DistanceY", 7, 1, 7, 2, Q("2.47 mm")))
sketch11.addConstraint(Sketcher.Constraint("DistanceY", 9, 1, 9, 2, Q("1.26 mm")))
sketch11.addConstraint(Sketcher.Constraint("DistanceX", -1, 1, 2, 2, Q("0.2 mm")))
sketch11.addConstraint(Sketcher.Constraint("DistanceY", 3, 2, -1, 1, Q("42.9 mm")))
sketch11.addConstraint(Sketcher.Constraint("DistanceX", -1, 1, 5, 2, Q("2.5 mm")))
sketch11.addConstraint(Sketcher.Constraint("Distance", 2, Q("1.54 mm")))
sketch11.addConstraint(Sketcher.Constraint("DistanceX", 0, 2, 0, 1, Q("0.975 mm")))
sketch11.addConstraint(Sketcher.Constraint("DistanceY", 0, 2, -1, 1, Q("32.31 mm")))
revolution3 = doc.addObject("PartDesign::Revolution", "Revolution002")
body4.addObject(revolution3)
revolution3.Profile = sketch11
revolution3.ReferenceAxis = (sketch11, ["V_Axis"])
revolution3.Angle = 360

# Sketch on XY plane
sketch12 = doc.addObject("Sketcher::SketchObject", "Sketch011")
body4.addObject(sketch12)
sketch12.AttachmentSupport = (doc.getObject("XY_Plane003"), [""])
sketch12.MapMode = "FlatFace"
sketch12.AttachmentOffset = App.Placement(V(0, 0, -37.57), App.Rotation())
add_polygon(sketch12, [(-4, 0), (-2, -3.5), (2, -3.5), (4, 0), (2, 3.5), (-2, 3.5)])  # lines 0-5
sketch12.addGeometry(Part.Circle(V(0, 0, 0), V(0, 0, 1), 1), False)  # 6
sketch12.addConstraint(Sketcher.Constraint("Horizontal", 1))
sketch12.addConstraint(Sketcher.Constraint("Horizontal", 4))
sketch12.addConstraint(Sketcher.Constraint("Coincident", 6, 3, -1, 1))
sketch12.addConstraint(Sketcher.Constraint("Symmetric", 0, 2, 3, 2, -1, 1))
sketch12.addConstraint(Sketcher.Constraint("Symmetric", 2, 2, 5, 2, -1, 1))
sketch12.addConstraint(Sketcher.Constraint("PointOnObject", 2, 2, -1))
sketch12.addConstraint(Sketcher.Constraint("Parallel", 2, 5))
sketch12.addConstraint(Sketcher.Constraint("Vertical", 1, 2, 3, 2))
sketch12.addConstraint(Sketcher.Constraint("Diameter", 6, Q("1.94 mm")))
sketch12.addConstraint(Sketcher.Constraint("Angle", 0, Q("-60 deg")))
sketch12.addConstraint(Sketcher.Constraint("DistanceY", 1, 2, 3, 2, Q("7 mm")))
sketch12.addConstraint(Sketcher.Constraint("DistanceX", 1, 1, 1, 2, Q("4.041452 mm")))
pad3 = doc.addObject("PartDesign::Pad", "Pad002")
body4.addObject(pad3)
pad3.Profile = sketch12
pad3.Length = 2.47
pad3.Reversed = True
body5 = doc.addObject("PartDesign::Body", "Body004")

# Sketch on XZ plane
sketch13 = doc.addObject("Sketcher::SketchObject", "Sketch012")
body5.addObject(sketch13)
sketch13.AttachmentSupport = (doc.getObject("XZ_Plane004"), [""])
sketch13.MapMode = "FlatFace"
add_polygon(sketch13, [(3.88, 11.3), (2.73, 11.3), (2.73, 1.8), (1.05, 1.8), (1.05, -3.2), (2.46, -3.2), (2.46, -0.05), (2.11, -0.05), (2.11, 0.8), (3.88, 0.8)])  # lines 0-9
sketch13.addConstraint(Sketcher.Constraint("Horizontal", 0))
sketch13.addConstraint(Sketcher.Constraint("Vertical", 1))
sketch13.addConstraint(Sketcher.Constraint("Horizontal", 2))
sketch13.addConstraint(Sketcher.Constraint("Vertical", 3))
sketch13.addConstraint(Sketcher.Constraint("Horizontal", 4))
sketch13.addConstraint(Sketcher.Constraint("Vertical", 5))
sketch13.addConstraint(Sketcher.Constraint("Horizontal", 6))
sketch13.addConstraint(Sketcher.Constraint("Vertical", 7))
sketch13.addConstraint(Sketcher.Constraint("Horizontal", 8))
sketch13.addConstraint(Sketcher.Constraint("Vertical", 9))
sketch13.addConstraint(Sketcher.Constraint("DistanceY", 3, 2, 3, 1, Q("5 mm")))
sketch13.addConstraint(Sketcher.Constraint("DistanceX", 4, 1, 4, 2, Q("1.4 mm")))
sketch13.addConstraint(Sketcher.Constraint("DistanceY", 1, 2, 1, 1, Q("9.5 mm")))
sketch13.addConstraint(Sketcher.Constraint("DistanceY", 9, 1, 9, 2, Q("10.5 mm")))
sketch13.addConstraint(Sketcher.Constraint("DistanceX", 8, 1, 8, 2, Q("1.77 mm")))
sketch13.addConstraint(Sketcher.Constraint("DistanceY", 5, 1, 5, 2, Q("3.15 mm")))
sketch13.addConstraint(Sketcher.Constraint("DistanceY", -1, 1, 0, 2, Q("11.3 mm")))
sketch13.addConstraint(Sketcher.Constraint("DistanceX", 6, 2, 6, 1, Q("0.345 mm")))
sketch13.addConstraint(Sketcher.Constraint("DistanceX", -1, 1, 6, 2, Q("2.11 mm")))
sketch13.addConstraint(Sketcher.Constraint("DistanceX", 0, 2, 0, 1, Q("1.151039 mm")))
revolution4 = doc.addObject("PartDesign::Revolution", "Revolution003")
body5.addObject(revolution4)
revolution4.Profile = sketch13
revolution4.ReferenceAxis = (sketch13, ["V_Axis"])
revolution4.Angle = 360

# Sketch on XY plane
sketch14 = doc.addObject("Sketcher::SketchObject", "Sketch013")
body5.addObject(sketch14)
sketch14.AttachmentSupport = (doc.getObject("XY_Plane004"), [""])
sketch14.MapMode = "FlatFace"
sketch14.AttachmentOffset = App.Placement(V(0, 0, 6.3), App.Rotation())
add_polygon(sketch14, [(-4.6, 0), (-2.3, 4), (2.3, 4), (4.6, 0), (2.3, -4), (-2.3, -4)])  # lines 0-5
sketch14.addGeometry(Part.Circle(V(0, 0, 0), V(0, 0, 1), 2.7), False)  # 6
sketch14.addConstraint(Sketcher.Constraint("Horizontal", 1))
sketch14.addConstraint(Sketcher.Constraint("Horizontal", 4))
sketch14.addConstraint(Sketcher.Constraint("Coincident", 6, 3, -1, 1))
sketch14.addConstraint(Sketcher.Constraint("Symmetric", 0, 2, 3, 2, -1, 1))
sketch14.addConstraint(Sketcher.Constraint("Symmetric", 2, 2, 5, 2, -1, 1))
sketch14.addConstraint(Sketcher.Constraint("PointOnObject", 2, 2, -1))
sketch14.addConstraint(Sketcher.Constraint("Parallel", 2, 5))
sketch14.addConstraint(Sketcher.Constraint("Vertical", 1, 2, 3, 2))
sketch14.addConstraint(Sketcher.Constraint("Angle", 0, Q("60 deg")))
sketch14.addConstraint(Sketcher.Constraint("DistanceY", 3, 2, 1, 2, Q("7.95 mm")))
sketch14.addConstraint(Sketcher.Constraint("Diameter", 6, Q("5.457923 mm")))
sketch14.addConstraint(Sketcher.Constraint("DistanceX", 0, 2, 2, 2, Q("6.884902 mm")))
pad4 = doc.addObject("PartDesign::Pad", "Pad003")
body5.addObject(pad4)
pad4.Profile = sketch14
pad4.Length = 4.22
pad4.Reversed = True
body6 = doc.addObject("PartDesign::Body", "Body005")

# Sketch on XZ plane
sketch15 = doc.addObject("Sketcher::SketchObject", "Sketch014")
body6.addObject(sketch15)
sketch15.AttachmentSupport = (doc.getObject("XZ_Plane005"), [""])
sketch15.MapMode = "FlatFace"
sketch15.addGeometry(Part.LineSegment(V(3.9, 11.3, 0), V(3.9, 12.3, 0)), False)
sketch15.addGeometry(Part.LineSegment(V(3.9, 12.3, 0), V(2.5, 12.3, 0)), False)
sketch15.addGeometry(Part.LineSegment(V(2.5, 12.3, 0), V(2.5, 13.2, 0)), False)
sketch15.addGeometry(Part.LineSegment(V(2.5, 13.2, 0), V(3.9, 13.2, 0)), False)
sketch15.addGeometry(Part.LineSegment(V(3.9, 13.2, 0), V(3.9, 14.2, 0)), False)
sketch15.addGeometry(Part.ArcOfCircle(Part.Circle(V(3.4, 14.2, 0), V(0, 0, 1), 0.5), math.radians(0), math.radians(90)), False)
sketch15.addGeometry(Part.LineSegment(V(3.4, 14.7, 0), V(2.1, 14.7, 0)), False)
sketch15.addGeometry(Part.LineSegment(V(2.1, 14.7, 0), V(2.1, 11.3, 0)), False)
sketch15.addGeometry(Part.LineSegment(V(2.1, 11.3, 0), V(3.9, 11.3, 0)), False)
sketch15.addConstraint(Sketcher.Constraint("Coincident", 0, 2, 1, 1))
sketch15.addConstraint(Sketcher.Constraint("Coincident", 1, 2, 2, 1))
sketch15.addConstraint(Sketcher.Constraint("Coincident", 2, 2, 3, 1))
sketch15.addConstraint(Sketcher.Constraint("Coincident", 3, 2, 4, 1))
sketch15.addConstraint(Sketcher.Constraint("Tangent", 4, 2, 5, 1))
sketch15.addConstraint(Sketcher.Constraint("Tangent", 5, 2, 6, 1))
sketch15.addConstraint(Sketcher.Constraint("Coincident", 6, 2, 7, 1))
sketch15.addConstraint(Sketcher.Constraint("Coincident", 7, 2, 8, 1))
sketch15.addConstraint(Sketcher.Constraint("Coincident", 8, 2, 0, 1))
sketch15.addConstraint(Sketcher.Constraint("Vertical", 0))
sketch15.addConstraint(Sketcher.Constraint("Horizontal", 1))
sketch15.addConstraint(Sketcher.Constraint("Vertical", 2))
sketch15.addConstraint(Sketcher.Constraint("Horizontal", 3))
sketch15.addConstraint(Sketcher.Constraint("Vertical", 4))
sketch15.addConstraint(Sketcher.Constraint("Horizontal", 6))
sketch15.addConstraint(Sketcher.Constraint("Vertical", 7))
sketch15.addConstraint(Sketcher.Constraint("Horizontal", 8))
sketch15.addConstraint(Sketcher.Constraint("Vertical", 0, 2, 3, 2))
sketch15.addConstraint(Sketcher.Constraint("Equal", 0, 4))
sketch15.addConstraint(Sketcher.Constraint("Radius", 5, Q("0.5 mm")))
sketch15.addConstraint(Sketcher.Constraint("DistanceY", 0, 1, 0, 2, Q("1 mm")))
sketch15.addConstraint(Sketcher.Constraint("DistanceY", 2, 1, 2, 2, Q("0.9 mm")))
sketch15.addConstraint(Sketcher.Constraint("DistanceY", -1, 1, 5, 3, Q("14.2 mm")))
sketch15.addConstraint(Sketcher.Constraint("DistanceX", 1, 2, 1, 1, Q("1.405 mm")))
sketch15.addConstraint(Sketcher.Constraint("DistanceX", 6, 2, 6, 1, Q("1.285 mm")))
sketch15.addConstraint(Sketcher.Constraint("DistanceX", -1, 1, 5, 3, Q("3.38 mm")))
revolution5 = doc.addObject("PartDesign::Revolution", "Revolution004")
body6.addObject(revolution5)
revolution5.Profile = sketch15
revolution5.ReferenceAxis = (sketch15, ["V_Axis"])
revolution5.Angle = 360
body5.Visibility = False
body6.Visibility = False

doc.recompute()
